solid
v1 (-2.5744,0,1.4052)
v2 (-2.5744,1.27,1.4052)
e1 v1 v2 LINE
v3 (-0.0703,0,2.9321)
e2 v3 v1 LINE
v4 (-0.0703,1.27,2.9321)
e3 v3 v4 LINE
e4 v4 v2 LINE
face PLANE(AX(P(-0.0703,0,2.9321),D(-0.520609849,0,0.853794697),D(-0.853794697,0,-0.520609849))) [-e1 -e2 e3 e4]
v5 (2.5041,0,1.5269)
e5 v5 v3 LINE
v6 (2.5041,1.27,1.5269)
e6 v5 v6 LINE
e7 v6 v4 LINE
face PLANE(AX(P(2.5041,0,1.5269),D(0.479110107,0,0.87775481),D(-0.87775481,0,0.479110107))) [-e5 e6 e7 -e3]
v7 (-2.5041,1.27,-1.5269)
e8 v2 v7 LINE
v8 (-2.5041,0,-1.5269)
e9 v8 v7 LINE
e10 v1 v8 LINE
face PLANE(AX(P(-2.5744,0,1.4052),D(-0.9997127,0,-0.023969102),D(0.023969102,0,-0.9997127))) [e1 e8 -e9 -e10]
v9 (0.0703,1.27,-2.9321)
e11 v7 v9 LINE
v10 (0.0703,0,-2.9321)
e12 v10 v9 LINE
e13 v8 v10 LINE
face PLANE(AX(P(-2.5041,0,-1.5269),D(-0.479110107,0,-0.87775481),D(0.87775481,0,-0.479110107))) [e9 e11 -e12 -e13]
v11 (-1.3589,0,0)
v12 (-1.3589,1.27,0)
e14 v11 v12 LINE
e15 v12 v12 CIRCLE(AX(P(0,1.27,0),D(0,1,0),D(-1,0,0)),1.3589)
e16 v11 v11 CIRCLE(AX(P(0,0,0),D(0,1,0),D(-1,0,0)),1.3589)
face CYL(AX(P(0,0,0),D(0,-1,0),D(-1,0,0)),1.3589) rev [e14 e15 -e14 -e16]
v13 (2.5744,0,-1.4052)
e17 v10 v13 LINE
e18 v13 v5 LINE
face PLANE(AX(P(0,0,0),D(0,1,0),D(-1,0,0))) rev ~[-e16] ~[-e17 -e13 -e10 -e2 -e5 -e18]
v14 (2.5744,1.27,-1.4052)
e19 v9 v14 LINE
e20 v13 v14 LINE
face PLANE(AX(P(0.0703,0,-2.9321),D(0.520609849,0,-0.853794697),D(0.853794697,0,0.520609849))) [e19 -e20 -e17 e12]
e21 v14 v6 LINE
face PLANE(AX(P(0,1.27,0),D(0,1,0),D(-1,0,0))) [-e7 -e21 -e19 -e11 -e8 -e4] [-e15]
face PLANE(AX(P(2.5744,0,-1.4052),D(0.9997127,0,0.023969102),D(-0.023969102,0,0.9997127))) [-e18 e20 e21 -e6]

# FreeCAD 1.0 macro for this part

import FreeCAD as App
import Part
import Sketcher
Q = App.Units.Quantity

doc = App.newDocument("Part")
body = doc.addObject("PartDesign::Body", "Body")

# Sketch on XZ plane
sketch1 = body.newObject("Sketcher::SketchObject", "Sketch")
sketch1.AttachmentSupport = (doc.getObject("XZ_Plane"), [""])
sketch1.MapMode = "FlatFace"
sketch1.addGeometry([
    Part.LineSegment(App.Vector(-2.5041, -1.5269, 0), App.Vector(-2.5744, 1.4052, 0)),  # 0
    Part.LineSegment(App.Vector(-2.5744, 1.4052, 0), App.Vector(-0.0703, 2.9321, 0)),  # 1
    Part.LineSegment(App.Vector(-0.0703, 2.9321, 0), App.Vector(2.5041, 1.5269, 0)),  # 2
    Part.LineSegment(App.Vector(2.5041, 1.5269, 0), App.Vector(2.5744, -1.4052, 0)),  # 3
    Part.LineSegment(App.Vector(2.5744, -1.4052, 0), App.Vector(0.0703, -2.9321, 0)),  # 4
    Part.LineSegment(App.Vector(0.0703, -2.9321, 0), App.Vector(-2.5041, -1.5269, 0)),  # 5
    Part.Circle(App.Vector(0, 0, 0), App.Vector(0, 0, 1), 1.3589),  # 6
], False)
sketch1.addConstraint([
    Sketcher.Constraint("Coincident", 0, 2, 1, 1),
    Sketcher.Constraint("Coincident", 1, 2, 2, 1),
    Sketcher.Constraint("Coincident", 2, 2, 3, 1),
    Sketcher.Constraint("Coincident", 3, 2, 4, 1),
    Sketcher.Constraint("Coincident", 4, 2, 5, 1),
    Sketcher.Constraint("Coincident", 5, 2, 0, 1),
    Sketcher.Constraint("Coincident", 6, 3, -1, 1),
    Sketcher.Constraint("Diameter", 6, Q("0.107 in")),
    Sketcher.Constraint("DistanceY", 0, 2, 2, 2, Q("0.0048 in")),
    Sketcher.Constraint("DistanceX", 0, 2, 3, 2, Q("0.2027 in")),
    Sketcher.Constraint("DistanceY", 5, 2, 3, 2, Q("0.0048 in")),
    Sketcher.Constraint("Distance", 0, Q("2.933 mm")),
    Sketcher.Constraint("Distance", 1, Q("2.933 mm")),
    Sketcher.Constraint("Distance", 2, Q("2.933 mm")),
    Sketcher.Constraint("Distance", 3, Q("2.933 mm")),
    Sketcher.Constraint("Distance", 4, Q("2.933 mm")),
    Sketcher.Constraint("Distance", 5, Q("2.933 mm")),
    Sketcher.Constraint("DistanceX", 0, 2, -1, 1, Q("2.5744 mm")),
    Sketcher.Constraint("DistanceY", -1, 1, 0, 2, Q("1.4052 mm")),
    Sketcher.Constraint("DistanceX", 1, 2, -1, 1, Q("0.0703 mm")),
])
pad1 = body.newObject("PartDesign::Pad", "Pad")
pad1.Profile = sketch1
pad1.Length = Q("0.05 in")
pad1.Reversed = True

doc.recompute()
